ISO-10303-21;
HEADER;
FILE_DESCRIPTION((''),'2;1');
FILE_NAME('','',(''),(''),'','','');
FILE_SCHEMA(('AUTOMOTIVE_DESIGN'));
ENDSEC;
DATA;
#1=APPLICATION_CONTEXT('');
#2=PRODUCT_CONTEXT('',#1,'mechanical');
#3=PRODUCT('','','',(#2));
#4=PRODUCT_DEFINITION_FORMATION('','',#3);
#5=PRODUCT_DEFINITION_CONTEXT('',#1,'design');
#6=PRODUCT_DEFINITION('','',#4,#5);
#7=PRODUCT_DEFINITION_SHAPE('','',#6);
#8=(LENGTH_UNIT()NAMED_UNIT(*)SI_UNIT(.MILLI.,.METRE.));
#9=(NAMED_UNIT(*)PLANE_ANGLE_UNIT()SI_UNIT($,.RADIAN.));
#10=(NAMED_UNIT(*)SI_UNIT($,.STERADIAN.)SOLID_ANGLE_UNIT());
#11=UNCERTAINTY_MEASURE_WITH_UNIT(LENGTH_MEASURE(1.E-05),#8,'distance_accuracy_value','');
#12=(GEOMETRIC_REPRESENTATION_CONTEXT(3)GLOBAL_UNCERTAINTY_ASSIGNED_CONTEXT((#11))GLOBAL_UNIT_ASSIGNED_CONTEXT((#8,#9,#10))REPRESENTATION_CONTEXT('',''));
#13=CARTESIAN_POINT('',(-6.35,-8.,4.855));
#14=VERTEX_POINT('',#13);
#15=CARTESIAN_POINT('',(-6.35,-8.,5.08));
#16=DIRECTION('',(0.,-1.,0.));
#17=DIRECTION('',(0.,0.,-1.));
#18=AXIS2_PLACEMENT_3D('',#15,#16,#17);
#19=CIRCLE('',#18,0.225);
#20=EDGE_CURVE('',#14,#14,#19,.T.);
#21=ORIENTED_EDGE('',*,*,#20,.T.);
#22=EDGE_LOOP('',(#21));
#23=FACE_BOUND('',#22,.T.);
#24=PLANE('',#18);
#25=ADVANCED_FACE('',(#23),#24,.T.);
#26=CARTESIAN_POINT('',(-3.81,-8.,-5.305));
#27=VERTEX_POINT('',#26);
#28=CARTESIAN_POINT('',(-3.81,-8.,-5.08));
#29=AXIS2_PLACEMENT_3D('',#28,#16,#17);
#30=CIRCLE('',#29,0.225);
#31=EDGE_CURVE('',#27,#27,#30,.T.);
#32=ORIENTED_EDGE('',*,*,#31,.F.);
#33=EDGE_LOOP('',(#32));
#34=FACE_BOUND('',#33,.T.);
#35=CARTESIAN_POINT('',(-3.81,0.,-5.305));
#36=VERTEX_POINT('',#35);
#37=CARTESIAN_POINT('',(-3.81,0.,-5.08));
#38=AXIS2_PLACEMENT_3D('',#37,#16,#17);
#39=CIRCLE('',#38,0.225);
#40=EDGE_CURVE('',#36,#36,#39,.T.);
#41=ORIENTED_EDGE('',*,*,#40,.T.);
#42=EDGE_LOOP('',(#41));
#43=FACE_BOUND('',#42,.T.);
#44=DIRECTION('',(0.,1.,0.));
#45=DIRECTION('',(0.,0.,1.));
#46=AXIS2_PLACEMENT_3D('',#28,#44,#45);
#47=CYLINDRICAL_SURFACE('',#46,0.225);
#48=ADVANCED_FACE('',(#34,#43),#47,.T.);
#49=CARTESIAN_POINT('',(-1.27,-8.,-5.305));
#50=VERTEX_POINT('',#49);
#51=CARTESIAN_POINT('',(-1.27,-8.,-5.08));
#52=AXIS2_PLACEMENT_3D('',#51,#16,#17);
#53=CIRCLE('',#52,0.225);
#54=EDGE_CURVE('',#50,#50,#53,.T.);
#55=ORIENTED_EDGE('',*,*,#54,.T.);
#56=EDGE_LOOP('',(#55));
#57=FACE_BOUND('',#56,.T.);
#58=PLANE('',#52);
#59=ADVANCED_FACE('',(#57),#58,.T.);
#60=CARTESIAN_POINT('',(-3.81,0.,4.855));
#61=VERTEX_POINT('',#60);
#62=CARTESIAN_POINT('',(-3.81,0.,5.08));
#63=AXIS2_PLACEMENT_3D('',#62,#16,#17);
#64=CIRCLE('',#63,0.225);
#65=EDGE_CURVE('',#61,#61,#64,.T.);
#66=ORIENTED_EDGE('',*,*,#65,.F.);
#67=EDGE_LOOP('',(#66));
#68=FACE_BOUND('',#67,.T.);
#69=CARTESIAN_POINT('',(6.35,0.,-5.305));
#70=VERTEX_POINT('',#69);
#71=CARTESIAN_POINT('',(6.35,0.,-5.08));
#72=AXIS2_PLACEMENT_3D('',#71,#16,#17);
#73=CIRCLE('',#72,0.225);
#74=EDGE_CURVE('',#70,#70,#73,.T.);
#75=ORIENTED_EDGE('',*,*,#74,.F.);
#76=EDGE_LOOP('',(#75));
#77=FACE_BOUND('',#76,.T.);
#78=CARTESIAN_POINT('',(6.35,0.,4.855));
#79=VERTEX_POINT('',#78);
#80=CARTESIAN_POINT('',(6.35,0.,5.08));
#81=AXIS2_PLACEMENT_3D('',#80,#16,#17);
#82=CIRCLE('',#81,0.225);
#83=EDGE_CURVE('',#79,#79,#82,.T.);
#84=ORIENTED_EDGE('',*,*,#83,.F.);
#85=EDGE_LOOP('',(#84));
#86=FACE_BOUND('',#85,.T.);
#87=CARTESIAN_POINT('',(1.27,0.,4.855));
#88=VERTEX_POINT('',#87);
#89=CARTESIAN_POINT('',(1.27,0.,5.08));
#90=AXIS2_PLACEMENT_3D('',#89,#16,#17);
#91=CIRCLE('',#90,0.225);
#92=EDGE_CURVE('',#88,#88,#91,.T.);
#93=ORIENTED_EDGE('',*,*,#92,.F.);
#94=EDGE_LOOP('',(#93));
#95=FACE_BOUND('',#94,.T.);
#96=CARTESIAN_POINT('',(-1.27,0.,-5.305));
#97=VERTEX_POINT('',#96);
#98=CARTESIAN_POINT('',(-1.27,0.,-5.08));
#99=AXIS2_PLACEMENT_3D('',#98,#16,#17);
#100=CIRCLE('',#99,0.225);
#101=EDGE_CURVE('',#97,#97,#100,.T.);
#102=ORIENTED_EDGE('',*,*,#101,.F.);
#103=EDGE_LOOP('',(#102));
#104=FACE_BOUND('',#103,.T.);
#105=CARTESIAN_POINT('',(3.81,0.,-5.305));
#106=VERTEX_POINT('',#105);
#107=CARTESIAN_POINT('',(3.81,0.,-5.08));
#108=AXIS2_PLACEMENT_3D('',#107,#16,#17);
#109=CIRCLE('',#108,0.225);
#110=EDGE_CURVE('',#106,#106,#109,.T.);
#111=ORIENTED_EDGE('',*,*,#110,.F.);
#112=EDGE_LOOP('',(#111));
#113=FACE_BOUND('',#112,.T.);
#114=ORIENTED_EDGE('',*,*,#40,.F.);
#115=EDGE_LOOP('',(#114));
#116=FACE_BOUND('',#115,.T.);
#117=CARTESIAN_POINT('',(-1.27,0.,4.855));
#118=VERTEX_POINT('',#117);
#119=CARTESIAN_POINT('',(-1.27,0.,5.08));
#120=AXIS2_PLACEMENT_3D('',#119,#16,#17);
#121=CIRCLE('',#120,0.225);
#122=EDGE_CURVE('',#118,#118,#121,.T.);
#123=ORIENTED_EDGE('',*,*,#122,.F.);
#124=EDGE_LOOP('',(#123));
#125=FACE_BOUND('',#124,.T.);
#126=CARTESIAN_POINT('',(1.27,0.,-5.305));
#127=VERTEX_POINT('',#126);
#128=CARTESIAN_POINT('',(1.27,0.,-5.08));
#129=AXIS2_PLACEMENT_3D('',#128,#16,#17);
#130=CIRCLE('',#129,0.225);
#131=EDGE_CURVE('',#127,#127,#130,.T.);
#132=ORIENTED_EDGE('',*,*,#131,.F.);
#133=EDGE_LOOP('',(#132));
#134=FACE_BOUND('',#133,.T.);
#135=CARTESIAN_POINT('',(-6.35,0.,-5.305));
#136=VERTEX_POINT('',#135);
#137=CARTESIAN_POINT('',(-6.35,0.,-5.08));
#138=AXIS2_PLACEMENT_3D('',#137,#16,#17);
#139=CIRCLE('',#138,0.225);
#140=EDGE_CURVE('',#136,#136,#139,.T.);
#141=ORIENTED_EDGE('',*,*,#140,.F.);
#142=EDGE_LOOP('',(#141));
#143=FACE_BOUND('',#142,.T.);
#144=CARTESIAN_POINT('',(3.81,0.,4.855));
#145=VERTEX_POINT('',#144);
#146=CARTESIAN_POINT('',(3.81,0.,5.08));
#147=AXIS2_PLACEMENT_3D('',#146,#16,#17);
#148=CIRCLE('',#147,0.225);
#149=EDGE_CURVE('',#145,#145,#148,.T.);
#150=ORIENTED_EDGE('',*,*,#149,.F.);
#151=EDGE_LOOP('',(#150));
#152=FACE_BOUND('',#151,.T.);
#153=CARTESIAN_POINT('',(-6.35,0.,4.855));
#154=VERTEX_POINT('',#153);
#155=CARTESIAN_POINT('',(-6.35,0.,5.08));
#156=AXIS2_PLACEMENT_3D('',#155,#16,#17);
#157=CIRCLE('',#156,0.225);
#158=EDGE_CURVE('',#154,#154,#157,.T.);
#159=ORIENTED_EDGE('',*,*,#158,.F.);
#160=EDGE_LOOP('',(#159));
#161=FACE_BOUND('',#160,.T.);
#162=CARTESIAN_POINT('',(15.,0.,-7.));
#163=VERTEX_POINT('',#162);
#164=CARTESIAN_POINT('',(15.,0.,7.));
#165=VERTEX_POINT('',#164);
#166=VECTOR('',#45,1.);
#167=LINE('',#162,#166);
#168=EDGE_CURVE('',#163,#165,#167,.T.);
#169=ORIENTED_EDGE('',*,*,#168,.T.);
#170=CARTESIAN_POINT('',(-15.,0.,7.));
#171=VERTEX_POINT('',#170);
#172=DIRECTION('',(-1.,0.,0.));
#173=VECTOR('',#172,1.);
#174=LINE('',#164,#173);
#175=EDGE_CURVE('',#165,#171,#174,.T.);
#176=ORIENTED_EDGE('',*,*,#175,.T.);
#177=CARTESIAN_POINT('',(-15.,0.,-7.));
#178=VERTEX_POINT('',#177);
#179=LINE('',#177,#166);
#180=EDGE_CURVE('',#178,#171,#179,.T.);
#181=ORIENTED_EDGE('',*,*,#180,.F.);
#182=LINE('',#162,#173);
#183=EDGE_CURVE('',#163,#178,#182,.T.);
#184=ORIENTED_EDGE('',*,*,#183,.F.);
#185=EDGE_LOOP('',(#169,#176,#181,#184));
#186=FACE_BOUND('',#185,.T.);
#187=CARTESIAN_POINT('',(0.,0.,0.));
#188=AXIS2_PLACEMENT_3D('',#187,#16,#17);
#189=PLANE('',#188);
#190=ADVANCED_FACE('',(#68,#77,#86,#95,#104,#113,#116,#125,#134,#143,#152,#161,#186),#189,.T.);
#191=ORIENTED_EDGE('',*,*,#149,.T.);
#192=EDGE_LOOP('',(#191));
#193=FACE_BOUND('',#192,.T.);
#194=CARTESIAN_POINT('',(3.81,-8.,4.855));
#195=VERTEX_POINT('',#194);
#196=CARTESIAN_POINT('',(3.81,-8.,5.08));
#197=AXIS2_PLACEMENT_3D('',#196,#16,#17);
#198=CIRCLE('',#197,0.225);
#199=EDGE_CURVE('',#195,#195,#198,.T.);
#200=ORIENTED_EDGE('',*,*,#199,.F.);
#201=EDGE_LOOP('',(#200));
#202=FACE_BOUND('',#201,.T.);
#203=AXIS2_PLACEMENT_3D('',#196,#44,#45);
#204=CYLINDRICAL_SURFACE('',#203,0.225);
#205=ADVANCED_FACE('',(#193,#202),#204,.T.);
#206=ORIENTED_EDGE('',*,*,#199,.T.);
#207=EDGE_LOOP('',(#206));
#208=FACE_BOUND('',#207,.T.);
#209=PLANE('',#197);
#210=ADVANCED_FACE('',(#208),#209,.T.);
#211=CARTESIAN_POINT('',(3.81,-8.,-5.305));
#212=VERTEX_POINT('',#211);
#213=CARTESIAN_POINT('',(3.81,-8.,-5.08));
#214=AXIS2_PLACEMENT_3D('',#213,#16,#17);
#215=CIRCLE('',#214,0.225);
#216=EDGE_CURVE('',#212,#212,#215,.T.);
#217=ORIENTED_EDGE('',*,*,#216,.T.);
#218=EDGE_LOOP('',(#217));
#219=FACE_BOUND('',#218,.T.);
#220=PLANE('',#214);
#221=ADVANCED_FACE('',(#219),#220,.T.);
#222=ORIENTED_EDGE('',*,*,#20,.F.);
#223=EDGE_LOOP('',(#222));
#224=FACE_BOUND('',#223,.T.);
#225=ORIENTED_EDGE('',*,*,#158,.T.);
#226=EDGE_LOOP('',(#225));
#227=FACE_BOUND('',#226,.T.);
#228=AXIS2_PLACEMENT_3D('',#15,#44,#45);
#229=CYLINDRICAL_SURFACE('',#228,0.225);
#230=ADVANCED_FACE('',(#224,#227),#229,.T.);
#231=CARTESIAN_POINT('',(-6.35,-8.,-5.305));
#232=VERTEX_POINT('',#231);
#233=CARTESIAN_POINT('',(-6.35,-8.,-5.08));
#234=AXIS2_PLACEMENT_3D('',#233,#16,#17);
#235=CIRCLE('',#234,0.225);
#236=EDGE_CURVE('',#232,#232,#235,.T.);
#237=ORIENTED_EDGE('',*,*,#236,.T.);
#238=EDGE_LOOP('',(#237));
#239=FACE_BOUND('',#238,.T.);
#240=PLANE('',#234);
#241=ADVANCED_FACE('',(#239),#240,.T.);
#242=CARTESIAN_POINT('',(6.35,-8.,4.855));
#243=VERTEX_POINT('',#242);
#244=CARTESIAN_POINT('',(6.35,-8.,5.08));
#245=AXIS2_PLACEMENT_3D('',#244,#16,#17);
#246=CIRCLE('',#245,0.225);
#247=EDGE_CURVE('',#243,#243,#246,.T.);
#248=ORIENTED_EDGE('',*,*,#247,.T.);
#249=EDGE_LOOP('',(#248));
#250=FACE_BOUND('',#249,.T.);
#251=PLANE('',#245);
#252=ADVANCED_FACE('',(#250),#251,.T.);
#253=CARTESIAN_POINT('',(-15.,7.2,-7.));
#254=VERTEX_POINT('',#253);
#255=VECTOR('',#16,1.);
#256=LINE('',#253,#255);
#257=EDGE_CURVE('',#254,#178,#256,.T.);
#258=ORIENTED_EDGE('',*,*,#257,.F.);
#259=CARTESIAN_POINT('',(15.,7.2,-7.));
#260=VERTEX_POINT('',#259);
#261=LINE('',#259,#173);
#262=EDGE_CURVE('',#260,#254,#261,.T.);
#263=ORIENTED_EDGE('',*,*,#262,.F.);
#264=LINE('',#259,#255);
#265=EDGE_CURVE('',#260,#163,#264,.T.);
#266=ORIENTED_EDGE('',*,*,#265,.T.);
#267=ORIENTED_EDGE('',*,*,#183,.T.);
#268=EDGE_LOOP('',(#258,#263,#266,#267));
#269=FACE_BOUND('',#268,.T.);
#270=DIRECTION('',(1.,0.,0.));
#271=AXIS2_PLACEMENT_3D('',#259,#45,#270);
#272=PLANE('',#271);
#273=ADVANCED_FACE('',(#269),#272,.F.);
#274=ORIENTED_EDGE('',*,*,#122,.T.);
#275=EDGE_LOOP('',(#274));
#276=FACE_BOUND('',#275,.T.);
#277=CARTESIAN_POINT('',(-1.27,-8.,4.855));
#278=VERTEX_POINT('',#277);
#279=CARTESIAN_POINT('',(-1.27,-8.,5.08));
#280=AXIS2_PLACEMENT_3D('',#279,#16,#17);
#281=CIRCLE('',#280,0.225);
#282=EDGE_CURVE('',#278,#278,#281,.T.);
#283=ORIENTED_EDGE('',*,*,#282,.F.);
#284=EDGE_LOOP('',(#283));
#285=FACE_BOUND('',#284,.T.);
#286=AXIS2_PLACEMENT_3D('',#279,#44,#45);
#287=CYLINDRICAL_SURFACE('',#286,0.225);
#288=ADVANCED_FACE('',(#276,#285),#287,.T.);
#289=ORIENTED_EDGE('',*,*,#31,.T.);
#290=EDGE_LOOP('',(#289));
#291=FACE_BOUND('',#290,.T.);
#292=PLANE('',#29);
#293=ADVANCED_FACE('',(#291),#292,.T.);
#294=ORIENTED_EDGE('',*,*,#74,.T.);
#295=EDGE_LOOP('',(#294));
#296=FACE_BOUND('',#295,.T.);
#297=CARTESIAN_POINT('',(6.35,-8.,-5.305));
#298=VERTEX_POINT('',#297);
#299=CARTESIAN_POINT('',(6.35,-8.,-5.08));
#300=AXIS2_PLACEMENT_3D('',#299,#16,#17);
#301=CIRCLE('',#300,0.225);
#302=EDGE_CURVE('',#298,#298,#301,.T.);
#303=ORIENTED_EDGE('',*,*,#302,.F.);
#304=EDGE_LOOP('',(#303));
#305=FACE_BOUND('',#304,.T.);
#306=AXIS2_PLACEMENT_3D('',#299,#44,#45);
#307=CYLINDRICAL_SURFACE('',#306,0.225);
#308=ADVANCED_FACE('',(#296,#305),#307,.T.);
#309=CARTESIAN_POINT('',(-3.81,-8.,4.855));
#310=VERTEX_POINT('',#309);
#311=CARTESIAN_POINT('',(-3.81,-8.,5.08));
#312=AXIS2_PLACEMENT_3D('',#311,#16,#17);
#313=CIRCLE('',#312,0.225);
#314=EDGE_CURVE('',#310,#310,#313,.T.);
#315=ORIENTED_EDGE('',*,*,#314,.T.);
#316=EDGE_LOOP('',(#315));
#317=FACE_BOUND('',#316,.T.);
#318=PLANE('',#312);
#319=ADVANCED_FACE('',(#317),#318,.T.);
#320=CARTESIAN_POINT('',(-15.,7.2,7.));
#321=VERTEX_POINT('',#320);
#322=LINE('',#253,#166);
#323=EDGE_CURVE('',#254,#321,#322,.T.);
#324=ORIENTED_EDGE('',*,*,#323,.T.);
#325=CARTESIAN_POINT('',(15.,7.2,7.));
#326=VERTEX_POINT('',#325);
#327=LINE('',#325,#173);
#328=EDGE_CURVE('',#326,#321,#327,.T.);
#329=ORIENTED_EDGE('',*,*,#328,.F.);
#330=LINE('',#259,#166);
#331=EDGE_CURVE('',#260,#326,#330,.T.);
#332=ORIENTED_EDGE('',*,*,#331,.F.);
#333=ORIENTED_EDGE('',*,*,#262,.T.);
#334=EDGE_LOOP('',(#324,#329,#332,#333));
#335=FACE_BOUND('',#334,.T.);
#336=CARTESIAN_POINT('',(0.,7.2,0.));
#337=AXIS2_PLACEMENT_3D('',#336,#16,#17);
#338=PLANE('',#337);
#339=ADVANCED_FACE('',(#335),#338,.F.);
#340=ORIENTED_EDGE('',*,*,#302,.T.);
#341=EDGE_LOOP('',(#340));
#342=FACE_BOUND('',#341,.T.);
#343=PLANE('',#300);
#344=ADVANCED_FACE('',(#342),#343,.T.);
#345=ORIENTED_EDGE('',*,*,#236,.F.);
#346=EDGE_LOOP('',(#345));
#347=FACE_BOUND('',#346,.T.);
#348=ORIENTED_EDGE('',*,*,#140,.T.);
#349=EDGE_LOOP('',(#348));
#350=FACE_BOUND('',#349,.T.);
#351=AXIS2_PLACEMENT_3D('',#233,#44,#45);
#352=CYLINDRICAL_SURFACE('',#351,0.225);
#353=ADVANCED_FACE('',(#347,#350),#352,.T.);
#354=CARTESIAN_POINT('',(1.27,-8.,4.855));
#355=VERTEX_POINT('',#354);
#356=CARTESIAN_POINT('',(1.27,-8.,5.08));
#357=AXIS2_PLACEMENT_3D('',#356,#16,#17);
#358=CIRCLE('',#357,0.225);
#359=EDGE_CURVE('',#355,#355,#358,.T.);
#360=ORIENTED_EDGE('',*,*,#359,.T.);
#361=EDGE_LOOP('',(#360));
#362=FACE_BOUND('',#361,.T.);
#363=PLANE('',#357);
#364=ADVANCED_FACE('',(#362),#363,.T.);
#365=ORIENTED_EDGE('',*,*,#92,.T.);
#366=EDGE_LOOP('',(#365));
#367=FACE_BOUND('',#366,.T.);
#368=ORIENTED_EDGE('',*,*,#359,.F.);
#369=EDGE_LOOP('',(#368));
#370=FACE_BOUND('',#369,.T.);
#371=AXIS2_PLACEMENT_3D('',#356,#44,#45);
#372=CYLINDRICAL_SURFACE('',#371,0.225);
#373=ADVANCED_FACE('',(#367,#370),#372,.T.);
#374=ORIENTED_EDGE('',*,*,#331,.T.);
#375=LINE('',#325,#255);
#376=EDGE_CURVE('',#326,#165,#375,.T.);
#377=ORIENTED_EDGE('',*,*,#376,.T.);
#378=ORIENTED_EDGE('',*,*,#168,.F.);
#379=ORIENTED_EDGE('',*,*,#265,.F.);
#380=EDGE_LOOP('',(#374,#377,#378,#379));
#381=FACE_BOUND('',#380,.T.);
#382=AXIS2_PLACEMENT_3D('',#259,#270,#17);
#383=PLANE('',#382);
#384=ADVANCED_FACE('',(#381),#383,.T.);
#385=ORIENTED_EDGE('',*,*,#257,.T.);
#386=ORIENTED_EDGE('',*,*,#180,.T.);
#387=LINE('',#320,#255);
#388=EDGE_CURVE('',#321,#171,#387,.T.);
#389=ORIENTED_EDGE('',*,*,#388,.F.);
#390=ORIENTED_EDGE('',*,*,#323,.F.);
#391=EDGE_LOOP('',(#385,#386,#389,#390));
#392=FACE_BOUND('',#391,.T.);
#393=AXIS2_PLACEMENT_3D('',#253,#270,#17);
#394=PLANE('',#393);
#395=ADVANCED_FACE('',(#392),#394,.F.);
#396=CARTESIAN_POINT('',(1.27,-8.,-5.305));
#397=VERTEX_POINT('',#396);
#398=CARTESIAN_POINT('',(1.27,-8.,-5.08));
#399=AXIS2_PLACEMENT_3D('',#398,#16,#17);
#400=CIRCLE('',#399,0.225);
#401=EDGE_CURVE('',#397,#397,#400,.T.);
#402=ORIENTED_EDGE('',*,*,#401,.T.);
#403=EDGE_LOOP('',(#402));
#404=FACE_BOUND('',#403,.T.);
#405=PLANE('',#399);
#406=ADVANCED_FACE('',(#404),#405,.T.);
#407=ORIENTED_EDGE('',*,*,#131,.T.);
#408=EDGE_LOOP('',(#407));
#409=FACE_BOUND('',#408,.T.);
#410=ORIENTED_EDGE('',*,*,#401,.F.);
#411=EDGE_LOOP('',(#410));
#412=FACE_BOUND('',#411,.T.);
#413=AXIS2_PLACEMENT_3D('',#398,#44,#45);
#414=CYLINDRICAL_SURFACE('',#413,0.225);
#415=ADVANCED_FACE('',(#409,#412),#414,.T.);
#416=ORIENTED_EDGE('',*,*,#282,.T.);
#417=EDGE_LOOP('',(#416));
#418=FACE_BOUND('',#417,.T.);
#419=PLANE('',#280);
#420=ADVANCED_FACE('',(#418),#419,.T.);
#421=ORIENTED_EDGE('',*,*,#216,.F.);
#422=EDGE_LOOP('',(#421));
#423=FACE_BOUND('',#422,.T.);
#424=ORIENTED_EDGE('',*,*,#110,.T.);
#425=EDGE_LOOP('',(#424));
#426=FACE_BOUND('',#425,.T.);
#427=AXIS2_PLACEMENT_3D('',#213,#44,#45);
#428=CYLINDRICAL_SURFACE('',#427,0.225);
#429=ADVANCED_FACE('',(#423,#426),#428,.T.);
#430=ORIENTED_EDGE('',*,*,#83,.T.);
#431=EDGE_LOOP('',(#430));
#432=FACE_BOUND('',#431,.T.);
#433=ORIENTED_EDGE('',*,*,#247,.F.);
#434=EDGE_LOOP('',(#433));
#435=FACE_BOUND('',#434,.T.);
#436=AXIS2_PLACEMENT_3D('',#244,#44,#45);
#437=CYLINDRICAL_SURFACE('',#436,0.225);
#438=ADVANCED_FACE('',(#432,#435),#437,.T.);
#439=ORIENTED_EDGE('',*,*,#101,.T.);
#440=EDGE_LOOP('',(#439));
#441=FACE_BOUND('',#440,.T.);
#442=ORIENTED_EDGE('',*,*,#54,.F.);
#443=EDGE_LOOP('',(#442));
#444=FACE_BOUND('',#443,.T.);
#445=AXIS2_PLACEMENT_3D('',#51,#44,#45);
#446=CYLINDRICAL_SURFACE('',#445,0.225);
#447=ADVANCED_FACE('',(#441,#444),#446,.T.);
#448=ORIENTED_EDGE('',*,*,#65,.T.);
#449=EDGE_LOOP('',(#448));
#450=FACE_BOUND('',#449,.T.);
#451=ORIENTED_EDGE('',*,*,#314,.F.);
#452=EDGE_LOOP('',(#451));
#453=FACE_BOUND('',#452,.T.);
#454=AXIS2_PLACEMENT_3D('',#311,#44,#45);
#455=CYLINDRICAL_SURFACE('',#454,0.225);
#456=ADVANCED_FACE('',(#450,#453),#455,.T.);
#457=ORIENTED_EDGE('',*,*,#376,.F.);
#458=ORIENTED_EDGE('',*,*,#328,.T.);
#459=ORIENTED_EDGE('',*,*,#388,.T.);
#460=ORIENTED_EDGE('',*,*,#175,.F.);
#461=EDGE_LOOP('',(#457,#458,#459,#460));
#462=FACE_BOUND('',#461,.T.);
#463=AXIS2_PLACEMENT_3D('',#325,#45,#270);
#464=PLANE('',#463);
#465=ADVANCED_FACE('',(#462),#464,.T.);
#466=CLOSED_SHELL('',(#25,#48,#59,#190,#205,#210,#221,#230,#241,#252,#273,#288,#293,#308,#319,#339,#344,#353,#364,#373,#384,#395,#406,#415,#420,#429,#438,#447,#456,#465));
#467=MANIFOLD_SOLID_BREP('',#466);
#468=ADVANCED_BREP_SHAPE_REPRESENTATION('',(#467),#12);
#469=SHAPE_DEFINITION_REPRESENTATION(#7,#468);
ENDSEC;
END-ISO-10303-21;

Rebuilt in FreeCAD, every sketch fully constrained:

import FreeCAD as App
import Part
import Sketcher
Q = App.Units.Quantity

doc = App.newDocument("Part")
body = doc.addObject("PartDesign::Body", "Body")

# Sketch on XZ plane
sketch1 = body.newObject("Sketcher::SketchObject", "Sketch")
sketch1.AttachmentSupport = (doc.getObject("XZ_Plane"), [""])
sketch1.MapMode = "FlatFace"
sketch1.addGeometry(Part.LineSegment(App.Vector(-15, -7, 0), App.Vector(-15, 7, 0)), False)
sketch1.addGeometry(Part.LineSegment(App.Vector(-15, 7, 0), App.Vector(15, 7, 0)), False)
sketch1.addGeometry(Part.LineSegment(App.Vector(15, 7, 0), App.Vector(15, -7, 0)), False)
sketch1.addGeometry(Part.LineSegment(App.Vector(15, -7, 0), App.Vector(-15, -7, 0)), False)
sketch1.addConstraint(Sketcher.Constraint("Coincident", 0, 2, 1, 1))
sketch1.addConstraint(Sketcher.Constraint("Coincident", 1, 2, 2, 1))
sketch1.addConstraint(Sketcher.Constraint("Coincident", 2, 2, 3, 1))
sketch1.addConstraint(Sketcher.Constraint("Coincident", 3, 2, 0, 1))
sketch1.addConstraint(Sketcher.Constraint("Vertical", 0))
sketch1.addConstraint(Sketcher.Constraint("Horizontal", 1))
sketch1.addConstraint(Sketcher.Constraint("Vertical", 2))
sketch1.addConstraint(Sketcher.Constraint("Horizontal", 3))
sketch1.addConstraint(Sketcher.Constraint("Symmetric", 0, 2, 2, 2, -1, 1))
sketch1.addConstraint(Sketcher.Constraint("DistanceX", 1, 1, 1, 2, Q("30 mm")))
sketch1.addConstraint(Sketcher.Constraint("DistanceY", 0, 1, 0, 2, Q("14 mm")))
pad1 = body.newObject("PartDesign::Pad", "Pad")
pad1.Profile = sketch1
pad1.Length = 7.2
pad1.Reversed = True

# Sketch on XZ plane
sketch2 = body.newObject("Sketcher::SketchObject", "Sketch001")
sketch2.AttachmentSupport = (doc.getObject("XZ_Plane"), [""])
sketch2.MapMode = "FlatFace"
sketch2.addGeometry(Part.Circle(App.Vector(-6.35, -5.08, 0), App.Vector(0, 0, 1), 0.23), False)
sketch2.addGeometry(Part.Circle(App.Vector(-3.81, -5.08, 0), App.Vector(0, 0, 1), 0.23), False)
sketch2.addGeometry(Part.Circle(App.Vector(-1.27, -5.08, 0), App.Vector(0, 0, 1), 0.23), False)
sketch2.addGeometry(Part.Circle(App.Vector(1.27, -5.08, 0), App.Vector(0, 0, 1), 0.23), False)
sketch2.addGeometry(Part.Circle(App.Vector(3.81, -5.08, 0), App.Vector(0, 0, 1), 0.23), False)
sketch2.addGeometry(Part.Circle(App.Vector(6.35, -5.08, 0), App.Vector(0, 0, 1), 0.23), False)
sketch2.addGeometry(Part.Circle(App.Vector(-3.81, 5.08, 0), App.Vector(0, 0, 1), 0.23), False)
sketch2.addGeometry(Part.Circle(App.Vector(-1.27, 5.08, 0), App.Vector(0, 0, 1), 0.23), False)
sketch2.addGeometry(Part.Circle(App.Vector(1.27, 5.08, 0), App.Vector(0, 0, 1), 0.23), False)
sketch2.addGeometry(Part.Circle(App.Vector(3.81, 5.08, 0), App.Vector(0, 0, 1), 0.23), False)
sketch2.addGeometry(Part.Circle(App.Vector(6.35, 5.08, 0), App.Vector(0, 0, 1), 0.23), False)
sketch2.addGeometry(Part.Circle(App.Vector(-6.35, 5.08, 0), App.Vector(0, 0, 1), 0.23), False)
sketch2.addConstraint(Sketcher.Constraint("Equal", 0, 1))
sketch2.addConstraint(Sketcher.Constraint("Equal", 1, 2))
sketch2.addConstraint(Sketcher.Constraint("Equal", 2, 3))
sketch2.addConstraint(Sketcher.Constraint("Equal", 3, 4))
sketch2.addConstraint(Sketcher.Constraint("Equal", 4, 5))
sketch2.addConstraint(Sketcher.Constraint("Equal", 5, 6))
sketch2.addConstraint(Sketcher.Constraint("Equal", 6, 7))
sketch2.addConstraint(Sketcher.Constraint("Equal", 7, 8))
sketch2.addConstraint(Sketcher.Constraint("Equal", 8, 9))
sketch2.addConstraint(Sketcher.Constraint("Equal", 9, 10))
sketch2.addConstraint(Sketcher.Constraint("Equal", 10, 11))
sketch2.addConstraint(Sketcher.Constraint("Symmetric", 4, 3, 6, 3, -1, 1))
sketch2.addConstraint(Sketcher.Constraint("Symmetric", 3, 3, 7, 3, -1, 1))
sketch2.addConstraint(Sketcher.Constraint("Symmetric", 2, 3, 8, 3, -1, 1))
sketch2.addConstraint(Sketcher.Constraint("Symmetric", 1, 3, 9, 3, -1, 1))
sketch2.addConstraint(Sketcher.Constraint("Symmetric", 0, 3, 10, 3, -1, 1))
sketch2.addConstraint(Sketcher.Constraint("Symmetric", 5, 3, 11, 3, -1, 1))
sketch2.addConstraint(Sketcher.Constraint("Symmetric", 2, 3, 3, 3, -2))
sketch2.addConstraint(Sketcher.Constraint("Symmetric", 1, 3, 4, 3, -2))
sketch2.addConstraint(Sketcher.Constraint("Symmetric", 0, 3, 5, 3, -2))
sketch2.addConstraint(Sketcher.Constraint("Horizontal", 0, 3, 1, 3))
sketch2.addConstraint(Sketcher.Constraint("Horizontal", 1, 3, 2, 3))
sketch2.addConstraint(Sketcher.Constraint("Diameter", 0, Q("0.45 mm")))
sketch2.addConstraint(Sketcher.Constraint("DistanceX", 0, 3, 5, 3, Q("12.7 mm")))
sketch2.addConstraint(Sketcher.Constraint("DistanceY", 0, 3, -1, 1, Q("5.08 mm")))
sketch2.addConstraint(Sketcher.Constraint("DistanceX", 1, 3, -1, 1, Q("3.81 mm")))
sketch2.addConstraint(Sketcher.Constraint("DistanceX", 2, 3, -1, 1, Q("1.27 mm")))
pad2 = body.newObject("PartDesign::Pad", "Pad001")
pad2.Profile = sketch2
pad2.Length = 8

doc.recompute()
